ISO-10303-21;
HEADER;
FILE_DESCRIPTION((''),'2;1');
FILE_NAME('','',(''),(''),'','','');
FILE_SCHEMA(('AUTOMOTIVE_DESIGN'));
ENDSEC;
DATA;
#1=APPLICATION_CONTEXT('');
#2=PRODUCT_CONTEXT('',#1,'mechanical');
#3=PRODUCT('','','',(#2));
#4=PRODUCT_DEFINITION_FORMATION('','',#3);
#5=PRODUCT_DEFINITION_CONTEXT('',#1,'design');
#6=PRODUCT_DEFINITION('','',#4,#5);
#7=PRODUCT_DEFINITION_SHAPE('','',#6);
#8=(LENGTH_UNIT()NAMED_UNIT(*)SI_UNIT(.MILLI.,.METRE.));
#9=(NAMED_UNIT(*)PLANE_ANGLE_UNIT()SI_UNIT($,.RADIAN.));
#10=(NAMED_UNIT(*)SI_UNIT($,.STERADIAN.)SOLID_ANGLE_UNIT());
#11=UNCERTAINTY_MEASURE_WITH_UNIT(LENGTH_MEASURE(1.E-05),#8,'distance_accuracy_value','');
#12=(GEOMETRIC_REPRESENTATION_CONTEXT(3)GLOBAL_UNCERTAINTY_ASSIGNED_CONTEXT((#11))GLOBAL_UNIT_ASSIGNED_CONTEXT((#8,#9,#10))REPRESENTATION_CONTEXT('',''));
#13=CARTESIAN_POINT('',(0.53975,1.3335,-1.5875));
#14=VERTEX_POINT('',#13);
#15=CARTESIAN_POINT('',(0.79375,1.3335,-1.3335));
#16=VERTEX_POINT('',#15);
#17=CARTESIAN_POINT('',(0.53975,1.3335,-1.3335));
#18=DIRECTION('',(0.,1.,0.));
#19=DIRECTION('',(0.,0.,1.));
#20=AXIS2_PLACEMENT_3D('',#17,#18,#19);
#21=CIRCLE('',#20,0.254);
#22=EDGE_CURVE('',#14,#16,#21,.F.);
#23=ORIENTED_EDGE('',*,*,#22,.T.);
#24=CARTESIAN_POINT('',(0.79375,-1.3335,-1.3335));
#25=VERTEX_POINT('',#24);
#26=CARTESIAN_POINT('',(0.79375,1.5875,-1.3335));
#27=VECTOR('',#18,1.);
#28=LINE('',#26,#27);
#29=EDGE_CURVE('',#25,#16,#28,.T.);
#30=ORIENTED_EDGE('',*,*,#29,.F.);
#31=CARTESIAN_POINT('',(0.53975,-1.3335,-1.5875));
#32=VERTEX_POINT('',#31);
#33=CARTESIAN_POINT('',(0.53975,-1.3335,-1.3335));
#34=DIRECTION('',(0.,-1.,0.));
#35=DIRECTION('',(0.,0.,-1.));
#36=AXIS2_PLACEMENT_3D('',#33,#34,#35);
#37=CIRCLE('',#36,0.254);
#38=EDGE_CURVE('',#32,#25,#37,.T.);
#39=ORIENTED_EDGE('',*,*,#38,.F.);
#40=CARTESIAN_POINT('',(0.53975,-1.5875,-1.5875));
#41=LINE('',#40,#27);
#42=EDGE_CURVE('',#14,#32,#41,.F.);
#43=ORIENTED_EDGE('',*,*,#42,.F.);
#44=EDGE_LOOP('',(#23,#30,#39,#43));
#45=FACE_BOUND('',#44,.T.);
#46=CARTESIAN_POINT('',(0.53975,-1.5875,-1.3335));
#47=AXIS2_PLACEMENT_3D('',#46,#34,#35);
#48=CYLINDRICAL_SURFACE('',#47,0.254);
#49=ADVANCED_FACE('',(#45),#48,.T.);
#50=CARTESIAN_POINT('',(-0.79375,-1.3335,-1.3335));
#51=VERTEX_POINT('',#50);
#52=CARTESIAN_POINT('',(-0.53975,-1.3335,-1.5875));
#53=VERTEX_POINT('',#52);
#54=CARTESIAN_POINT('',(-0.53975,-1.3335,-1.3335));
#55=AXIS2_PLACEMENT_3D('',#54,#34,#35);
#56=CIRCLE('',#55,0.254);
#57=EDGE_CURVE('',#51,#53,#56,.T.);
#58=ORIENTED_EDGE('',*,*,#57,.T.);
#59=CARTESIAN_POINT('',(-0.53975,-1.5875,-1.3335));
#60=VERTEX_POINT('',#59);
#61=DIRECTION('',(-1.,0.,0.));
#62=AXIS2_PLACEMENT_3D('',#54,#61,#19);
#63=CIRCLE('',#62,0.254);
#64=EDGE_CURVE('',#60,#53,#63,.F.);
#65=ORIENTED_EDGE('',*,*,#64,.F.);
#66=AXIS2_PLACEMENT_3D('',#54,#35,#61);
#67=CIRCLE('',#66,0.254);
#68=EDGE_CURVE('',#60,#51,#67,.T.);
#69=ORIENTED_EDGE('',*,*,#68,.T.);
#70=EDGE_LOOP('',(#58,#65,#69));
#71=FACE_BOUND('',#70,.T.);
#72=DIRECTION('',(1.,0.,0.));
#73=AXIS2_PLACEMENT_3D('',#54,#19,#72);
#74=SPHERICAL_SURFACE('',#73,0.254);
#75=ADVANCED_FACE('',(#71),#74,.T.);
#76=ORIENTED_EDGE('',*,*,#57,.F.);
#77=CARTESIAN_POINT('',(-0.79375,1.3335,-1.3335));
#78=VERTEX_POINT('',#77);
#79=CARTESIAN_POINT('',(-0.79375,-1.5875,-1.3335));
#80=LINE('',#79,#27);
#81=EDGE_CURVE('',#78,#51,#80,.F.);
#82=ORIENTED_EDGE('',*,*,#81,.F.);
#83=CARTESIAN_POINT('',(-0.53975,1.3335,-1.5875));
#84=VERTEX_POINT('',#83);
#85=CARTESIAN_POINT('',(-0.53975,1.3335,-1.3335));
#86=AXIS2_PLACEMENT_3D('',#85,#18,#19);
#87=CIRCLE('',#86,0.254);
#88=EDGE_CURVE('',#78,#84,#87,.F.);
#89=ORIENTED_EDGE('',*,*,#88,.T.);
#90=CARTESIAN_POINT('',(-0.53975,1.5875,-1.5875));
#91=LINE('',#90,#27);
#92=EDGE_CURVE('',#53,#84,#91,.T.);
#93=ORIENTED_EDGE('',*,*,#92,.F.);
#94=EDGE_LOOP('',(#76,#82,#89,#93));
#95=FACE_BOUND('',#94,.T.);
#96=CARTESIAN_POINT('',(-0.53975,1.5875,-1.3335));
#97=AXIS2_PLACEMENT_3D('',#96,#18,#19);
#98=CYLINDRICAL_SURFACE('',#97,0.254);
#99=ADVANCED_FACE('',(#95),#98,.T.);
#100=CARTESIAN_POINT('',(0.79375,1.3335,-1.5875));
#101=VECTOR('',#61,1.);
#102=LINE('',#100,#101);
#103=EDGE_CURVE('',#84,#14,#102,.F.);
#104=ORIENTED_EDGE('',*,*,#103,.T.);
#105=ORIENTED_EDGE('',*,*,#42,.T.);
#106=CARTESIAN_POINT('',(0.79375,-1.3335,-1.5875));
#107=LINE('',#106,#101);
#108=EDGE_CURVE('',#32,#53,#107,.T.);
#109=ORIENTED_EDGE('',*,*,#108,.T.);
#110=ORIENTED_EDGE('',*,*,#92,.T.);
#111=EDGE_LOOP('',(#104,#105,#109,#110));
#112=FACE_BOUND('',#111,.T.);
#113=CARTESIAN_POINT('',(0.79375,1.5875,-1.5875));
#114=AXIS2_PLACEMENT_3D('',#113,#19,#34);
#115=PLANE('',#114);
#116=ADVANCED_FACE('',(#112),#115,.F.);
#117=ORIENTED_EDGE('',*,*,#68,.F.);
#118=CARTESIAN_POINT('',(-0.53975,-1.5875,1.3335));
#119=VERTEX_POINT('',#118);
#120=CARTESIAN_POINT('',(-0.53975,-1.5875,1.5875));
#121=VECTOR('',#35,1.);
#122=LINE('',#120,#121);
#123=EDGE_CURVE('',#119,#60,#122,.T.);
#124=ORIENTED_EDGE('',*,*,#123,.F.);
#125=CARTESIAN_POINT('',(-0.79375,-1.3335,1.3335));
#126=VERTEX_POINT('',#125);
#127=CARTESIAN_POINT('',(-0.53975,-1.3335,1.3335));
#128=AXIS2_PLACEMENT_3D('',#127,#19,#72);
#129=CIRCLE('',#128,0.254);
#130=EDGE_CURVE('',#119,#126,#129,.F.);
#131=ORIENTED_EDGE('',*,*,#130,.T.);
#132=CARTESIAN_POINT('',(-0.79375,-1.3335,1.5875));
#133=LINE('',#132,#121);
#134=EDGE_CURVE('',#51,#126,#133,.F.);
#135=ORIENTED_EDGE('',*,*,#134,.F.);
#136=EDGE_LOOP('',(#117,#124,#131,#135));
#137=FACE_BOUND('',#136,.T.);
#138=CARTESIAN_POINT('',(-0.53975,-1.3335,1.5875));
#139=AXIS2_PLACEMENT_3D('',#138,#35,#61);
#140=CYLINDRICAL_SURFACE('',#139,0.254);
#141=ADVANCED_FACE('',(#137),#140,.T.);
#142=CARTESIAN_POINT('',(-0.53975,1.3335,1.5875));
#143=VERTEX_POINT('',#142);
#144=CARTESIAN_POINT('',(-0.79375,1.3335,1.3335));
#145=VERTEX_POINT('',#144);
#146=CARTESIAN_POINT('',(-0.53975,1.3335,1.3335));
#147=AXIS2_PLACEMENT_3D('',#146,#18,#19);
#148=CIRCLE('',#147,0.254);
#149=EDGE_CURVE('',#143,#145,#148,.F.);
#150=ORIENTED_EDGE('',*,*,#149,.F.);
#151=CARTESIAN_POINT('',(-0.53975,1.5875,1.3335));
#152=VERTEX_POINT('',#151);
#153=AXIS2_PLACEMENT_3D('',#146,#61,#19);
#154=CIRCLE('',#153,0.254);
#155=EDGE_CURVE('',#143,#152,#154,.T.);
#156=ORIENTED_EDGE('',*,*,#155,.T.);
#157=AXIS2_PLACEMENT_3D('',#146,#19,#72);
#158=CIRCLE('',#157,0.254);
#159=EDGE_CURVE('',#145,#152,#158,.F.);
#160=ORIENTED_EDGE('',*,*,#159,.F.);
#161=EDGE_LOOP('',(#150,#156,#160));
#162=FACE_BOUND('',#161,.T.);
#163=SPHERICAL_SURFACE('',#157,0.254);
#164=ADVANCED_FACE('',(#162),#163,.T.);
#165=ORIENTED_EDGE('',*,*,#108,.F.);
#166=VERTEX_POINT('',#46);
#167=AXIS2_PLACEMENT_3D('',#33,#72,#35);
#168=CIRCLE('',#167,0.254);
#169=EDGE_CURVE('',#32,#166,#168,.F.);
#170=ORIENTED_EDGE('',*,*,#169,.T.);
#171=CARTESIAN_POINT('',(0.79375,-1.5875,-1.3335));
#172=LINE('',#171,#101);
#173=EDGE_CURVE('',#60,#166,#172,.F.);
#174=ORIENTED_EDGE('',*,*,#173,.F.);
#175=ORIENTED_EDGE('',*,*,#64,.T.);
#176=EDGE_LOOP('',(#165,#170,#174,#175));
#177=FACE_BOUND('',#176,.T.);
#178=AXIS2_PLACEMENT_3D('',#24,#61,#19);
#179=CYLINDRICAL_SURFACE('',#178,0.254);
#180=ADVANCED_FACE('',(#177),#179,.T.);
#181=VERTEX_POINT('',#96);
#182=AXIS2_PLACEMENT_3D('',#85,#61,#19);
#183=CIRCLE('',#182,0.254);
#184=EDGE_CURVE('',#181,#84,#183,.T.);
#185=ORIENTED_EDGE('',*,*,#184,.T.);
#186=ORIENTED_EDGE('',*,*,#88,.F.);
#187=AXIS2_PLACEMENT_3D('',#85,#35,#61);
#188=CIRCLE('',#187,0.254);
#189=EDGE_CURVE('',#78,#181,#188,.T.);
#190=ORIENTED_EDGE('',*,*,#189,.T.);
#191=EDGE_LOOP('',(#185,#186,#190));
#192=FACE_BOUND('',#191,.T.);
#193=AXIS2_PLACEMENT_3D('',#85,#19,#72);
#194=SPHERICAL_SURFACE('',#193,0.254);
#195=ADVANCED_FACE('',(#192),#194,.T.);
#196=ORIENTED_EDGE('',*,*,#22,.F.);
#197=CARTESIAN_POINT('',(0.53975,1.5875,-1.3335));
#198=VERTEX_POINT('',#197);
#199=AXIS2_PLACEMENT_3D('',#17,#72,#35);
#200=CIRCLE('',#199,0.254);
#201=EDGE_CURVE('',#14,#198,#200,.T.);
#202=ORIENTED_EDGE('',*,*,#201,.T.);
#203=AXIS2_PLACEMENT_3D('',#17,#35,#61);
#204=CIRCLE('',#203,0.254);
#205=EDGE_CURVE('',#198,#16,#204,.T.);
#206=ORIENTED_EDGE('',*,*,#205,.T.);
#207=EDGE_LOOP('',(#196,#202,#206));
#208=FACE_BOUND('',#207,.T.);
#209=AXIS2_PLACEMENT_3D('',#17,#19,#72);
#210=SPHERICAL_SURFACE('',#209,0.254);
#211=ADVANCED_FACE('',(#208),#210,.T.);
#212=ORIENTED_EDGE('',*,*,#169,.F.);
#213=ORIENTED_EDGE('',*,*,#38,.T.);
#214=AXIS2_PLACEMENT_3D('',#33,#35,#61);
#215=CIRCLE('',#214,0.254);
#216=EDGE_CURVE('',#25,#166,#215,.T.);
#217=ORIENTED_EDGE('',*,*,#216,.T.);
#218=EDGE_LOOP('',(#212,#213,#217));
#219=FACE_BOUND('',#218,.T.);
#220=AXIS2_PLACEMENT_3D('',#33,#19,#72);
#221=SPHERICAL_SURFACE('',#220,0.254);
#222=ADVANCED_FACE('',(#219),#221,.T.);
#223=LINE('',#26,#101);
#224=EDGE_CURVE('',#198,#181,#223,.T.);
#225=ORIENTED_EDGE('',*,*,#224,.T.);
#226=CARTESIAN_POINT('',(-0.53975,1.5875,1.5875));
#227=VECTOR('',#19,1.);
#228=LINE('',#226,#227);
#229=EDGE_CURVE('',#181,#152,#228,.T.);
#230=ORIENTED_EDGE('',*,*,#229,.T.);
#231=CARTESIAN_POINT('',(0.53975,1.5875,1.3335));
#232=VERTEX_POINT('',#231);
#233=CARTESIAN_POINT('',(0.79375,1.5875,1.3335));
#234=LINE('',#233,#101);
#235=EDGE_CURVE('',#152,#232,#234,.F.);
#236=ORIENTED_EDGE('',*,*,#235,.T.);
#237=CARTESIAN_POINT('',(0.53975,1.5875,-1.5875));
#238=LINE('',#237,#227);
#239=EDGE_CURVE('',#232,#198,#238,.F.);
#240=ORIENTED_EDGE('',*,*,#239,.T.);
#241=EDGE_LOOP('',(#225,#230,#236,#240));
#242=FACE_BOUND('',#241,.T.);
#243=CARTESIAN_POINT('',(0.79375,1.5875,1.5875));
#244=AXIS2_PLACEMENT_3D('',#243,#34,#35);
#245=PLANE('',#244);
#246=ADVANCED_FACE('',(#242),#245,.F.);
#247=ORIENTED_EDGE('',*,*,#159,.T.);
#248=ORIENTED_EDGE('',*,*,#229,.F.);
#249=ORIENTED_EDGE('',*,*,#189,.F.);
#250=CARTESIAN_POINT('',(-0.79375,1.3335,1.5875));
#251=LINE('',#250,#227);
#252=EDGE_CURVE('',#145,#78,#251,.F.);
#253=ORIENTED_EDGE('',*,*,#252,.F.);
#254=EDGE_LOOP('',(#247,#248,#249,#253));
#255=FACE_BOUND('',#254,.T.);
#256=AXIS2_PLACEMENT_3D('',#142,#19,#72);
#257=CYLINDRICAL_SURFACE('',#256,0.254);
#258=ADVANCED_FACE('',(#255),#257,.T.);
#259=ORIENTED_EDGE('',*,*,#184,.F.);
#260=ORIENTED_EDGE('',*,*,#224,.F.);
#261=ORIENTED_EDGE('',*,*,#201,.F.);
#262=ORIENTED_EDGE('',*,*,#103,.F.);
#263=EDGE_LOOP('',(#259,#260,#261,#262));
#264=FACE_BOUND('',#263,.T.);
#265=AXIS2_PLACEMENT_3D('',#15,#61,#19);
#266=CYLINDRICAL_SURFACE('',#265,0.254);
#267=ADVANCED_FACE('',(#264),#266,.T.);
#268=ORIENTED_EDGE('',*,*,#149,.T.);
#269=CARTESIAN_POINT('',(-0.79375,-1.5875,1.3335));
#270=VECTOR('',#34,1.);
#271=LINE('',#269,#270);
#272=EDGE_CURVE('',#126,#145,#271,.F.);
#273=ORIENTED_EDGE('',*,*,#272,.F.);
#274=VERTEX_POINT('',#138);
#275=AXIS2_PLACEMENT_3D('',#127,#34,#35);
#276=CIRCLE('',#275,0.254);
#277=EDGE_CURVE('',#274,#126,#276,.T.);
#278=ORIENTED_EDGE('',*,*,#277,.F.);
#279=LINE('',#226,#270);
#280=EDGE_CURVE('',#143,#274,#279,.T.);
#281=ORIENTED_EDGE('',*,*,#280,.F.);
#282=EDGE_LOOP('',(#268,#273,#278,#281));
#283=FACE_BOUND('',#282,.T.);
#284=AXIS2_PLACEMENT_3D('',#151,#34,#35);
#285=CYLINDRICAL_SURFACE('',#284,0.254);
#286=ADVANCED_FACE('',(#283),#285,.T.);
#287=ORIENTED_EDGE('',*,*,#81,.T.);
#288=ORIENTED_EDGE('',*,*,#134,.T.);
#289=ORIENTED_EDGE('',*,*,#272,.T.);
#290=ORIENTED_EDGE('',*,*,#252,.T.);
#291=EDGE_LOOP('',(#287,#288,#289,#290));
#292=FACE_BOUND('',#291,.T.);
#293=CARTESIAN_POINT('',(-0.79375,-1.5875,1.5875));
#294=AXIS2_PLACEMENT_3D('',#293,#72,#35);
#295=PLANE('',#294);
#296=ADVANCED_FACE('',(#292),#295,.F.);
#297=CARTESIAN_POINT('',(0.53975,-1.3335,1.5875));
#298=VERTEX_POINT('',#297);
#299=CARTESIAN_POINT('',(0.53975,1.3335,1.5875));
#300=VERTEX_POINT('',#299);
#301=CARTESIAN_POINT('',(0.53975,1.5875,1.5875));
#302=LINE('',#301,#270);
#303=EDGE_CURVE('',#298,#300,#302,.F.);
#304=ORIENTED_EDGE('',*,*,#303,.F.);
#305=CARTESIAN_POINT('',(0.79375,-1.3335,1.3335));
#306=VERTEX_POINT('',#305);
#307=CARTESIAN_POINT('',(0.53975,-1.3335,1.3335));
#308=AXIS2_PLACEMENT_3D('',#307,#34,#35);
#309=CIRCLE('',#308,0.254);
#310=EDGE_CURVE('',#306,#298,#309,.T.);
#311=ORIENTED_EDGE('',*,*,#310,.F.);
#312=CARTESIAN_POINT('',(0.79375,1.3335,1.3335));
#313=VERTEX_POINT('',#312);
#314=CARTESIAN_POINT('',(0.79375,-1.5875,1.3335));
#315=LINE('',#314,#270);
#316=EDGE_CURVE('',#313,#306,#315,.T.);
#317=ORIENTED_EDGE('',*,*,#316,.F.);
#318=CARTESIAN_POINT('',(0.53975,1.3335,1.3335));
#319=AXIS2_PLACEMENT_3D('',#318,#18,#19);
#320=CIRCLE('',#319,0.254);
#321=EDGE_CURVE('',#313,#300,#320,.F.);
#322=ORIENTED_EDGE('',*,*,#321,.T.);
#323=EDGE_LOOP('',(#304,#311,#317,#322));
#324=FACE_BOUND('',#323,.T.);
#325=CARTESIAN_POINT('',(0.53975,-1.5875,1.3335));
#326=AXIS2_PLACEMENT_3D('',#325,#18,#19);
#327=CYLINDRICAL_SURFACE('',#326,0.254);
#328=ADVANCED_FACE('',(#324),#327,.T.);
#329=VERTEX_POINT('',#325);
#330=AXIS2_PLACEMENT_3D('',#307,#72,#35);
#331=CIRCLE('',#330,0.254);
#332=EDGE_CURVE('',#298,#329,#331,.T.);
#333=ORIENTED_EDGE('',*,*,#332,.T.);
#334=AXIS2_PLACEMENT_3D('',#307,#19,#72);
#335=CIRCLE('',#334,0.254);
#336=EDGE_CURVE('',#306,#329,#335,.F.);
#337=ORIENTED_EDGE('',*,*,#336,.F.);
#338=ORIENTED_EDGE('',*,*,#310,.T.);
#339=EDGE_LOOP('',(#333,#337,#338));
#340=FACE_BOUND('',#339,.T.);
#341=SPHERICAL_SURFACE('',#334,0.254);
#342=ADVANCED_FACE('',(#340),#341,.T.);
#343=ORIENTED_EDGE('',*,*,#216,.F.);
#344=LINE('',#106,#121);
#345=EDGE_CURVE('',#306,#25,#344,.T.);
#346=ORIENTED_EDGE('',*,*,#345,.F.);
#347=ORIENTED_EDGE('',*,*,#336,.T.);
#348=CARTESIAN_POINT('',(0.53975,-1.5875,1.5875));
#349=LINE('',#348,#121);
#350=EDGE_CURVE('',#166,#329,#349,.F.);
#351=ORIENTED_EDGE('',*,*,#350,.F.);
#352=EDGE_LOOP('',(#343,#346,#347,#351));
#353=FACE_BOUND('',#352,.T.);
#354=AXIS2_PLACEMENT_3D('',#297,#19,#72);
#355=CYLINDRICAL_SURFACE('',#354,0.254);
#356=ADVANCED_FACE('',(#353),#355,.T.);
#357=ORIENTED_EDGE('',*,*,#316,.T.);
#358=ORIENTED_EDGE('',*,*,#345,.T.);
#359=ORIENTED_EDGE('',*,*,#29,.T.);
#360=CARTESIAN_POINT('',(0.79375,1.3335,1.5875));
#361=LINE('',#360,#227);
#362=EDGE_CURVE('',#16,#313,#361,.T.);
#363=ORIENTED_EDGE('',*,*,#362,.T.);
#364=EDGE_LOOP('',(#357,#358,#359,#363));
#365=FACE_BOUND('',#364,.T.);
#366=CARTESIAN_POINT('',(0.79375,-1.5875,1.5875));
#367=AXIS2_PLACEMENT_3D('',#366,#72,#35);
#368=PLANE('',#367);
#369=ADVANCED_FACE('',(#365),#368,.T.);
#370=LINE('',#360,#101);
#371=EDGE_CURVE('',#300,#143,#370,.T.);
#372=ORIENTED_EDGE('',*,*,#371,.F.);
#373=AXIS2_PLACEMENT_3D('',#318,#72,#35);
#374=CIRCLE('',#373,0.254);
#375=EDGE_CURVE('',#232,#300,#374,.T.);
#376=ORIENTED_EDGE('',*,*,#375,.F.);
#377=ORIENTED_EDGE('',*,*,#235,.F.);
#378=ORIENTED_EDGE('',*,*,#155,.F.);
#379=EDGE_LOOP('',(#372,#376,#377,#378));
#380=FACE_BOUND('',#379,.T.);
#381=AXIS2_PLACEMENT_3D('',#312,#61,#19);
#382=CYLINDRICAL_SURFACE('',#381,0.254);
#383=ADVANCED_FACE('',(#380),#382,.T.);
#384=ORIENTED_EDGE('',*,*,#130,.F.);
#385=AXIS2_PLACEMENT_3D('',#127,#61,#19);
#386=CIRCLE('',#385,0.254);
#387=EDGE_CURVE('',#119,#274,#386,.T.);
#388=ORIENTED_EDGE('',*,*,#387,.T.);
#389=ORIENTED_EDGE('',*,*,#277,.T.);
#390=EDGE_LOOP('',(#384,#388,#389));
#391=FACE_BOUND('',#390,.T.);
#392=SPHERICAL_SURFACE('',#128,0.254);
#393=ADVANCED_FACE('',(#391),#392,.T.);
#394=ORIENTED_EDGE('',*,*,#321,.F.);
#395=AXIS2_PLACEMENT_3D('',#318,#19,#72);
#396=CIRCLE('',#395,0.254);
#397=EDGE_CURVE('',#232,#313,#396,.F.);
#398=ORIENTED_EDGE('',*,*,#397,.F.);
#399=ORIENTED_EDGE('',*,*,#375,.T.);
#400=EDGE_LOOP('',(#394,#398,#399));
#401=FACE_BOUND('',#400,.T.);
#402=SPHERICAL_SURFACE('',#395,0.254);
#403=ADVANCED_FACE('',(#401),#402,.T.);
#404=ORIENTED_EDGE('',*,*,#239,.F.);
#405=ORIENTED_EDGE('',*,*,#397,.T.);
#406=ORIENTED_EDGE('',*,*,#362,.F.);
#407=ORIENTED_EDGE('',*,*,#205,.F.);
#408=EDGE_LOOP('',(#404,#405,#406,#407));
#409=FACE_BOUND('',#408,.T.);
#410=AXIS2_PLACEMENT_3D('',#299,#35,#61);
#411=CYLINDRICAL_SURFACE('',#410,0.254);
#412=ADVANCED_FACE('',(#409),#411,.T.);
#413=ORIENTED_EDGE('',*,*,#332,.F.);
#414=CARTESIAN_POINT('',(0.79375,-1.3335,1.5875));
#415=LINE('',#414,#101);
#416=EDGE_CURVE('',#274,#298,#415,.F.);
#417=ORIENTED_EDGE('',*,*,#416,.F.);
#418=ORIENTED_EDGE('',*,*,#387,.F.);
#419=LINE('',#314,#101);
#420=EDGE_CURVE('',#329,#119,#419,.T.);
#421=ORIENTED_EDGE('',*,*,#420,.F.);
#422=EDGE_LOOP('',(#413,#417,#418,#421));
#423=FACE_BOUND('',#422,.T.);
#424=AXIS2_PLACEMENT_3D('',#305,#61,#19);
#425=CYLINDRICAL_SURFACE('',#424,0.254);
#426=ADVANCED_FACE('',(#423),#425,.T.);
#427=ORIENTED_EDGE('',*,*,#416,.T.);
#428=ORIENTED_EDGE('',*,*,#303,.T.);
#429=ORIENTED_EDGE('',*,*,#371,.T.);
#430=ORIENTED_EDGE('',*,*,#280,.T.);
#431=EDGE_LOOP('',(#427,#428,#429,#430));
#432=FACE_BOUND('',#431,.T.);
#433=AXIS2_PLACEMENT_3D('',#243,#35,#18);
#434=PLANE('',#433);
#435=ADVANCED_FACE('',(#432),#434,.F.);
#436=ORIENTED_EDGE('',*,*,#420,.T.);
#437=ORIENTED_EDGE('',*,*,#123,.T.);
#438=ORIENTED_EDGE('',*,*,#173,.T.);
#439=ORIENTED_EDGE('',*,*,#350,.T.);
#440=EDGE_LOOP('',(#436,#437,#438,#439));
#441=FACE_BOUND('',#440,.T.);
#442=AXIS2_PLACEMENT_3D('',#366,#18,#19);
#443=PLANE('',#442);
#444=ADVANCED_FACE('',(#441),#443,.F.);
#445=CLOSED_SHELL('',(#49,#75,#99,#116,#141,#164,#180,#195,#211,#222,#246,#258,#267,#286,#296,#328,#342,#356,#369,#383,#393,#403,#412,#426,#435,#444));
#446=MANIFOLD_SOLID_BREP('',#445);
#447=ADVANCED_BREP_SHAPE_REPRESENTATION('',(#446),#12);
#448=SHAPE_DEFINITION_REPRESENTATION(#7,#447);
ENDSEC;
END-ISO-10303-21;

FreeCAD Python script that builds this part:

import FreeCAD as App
import Part
import Sketcher

V = App.Vector
Q = App.Units.Quantity


def add_polygon(sketch, points):
    """Adds a closed chain of lines whose ends are joined by coincident constraints."""
    first, n = sketch.GeometryCount, len(points)
    for a, b in zip(points, points[1:] + points[:1]):
        sketch.addGeometry(Part.LineSegment(App.Vector(*a, 0), App.Vector(*b, 0)), False)
    for i in range(n):
        sketch.addConstraint(Sketcher.Constraint("Coincident", first + i, 2, first + (i + 1) % n, 1))

doc = App.newDocument("Part")
body = doc.addObject("PartDesign::Body", "Body")

# Sketch on YZ plane
sketch1 = doc.addObject("Sketcher::SketchObject", "Sketch")
body.addObject(sketch1)
sketch1.AttachmentSupport = (doc.YZ_Plane, [""])
sketch1.MapMode = "FlatFace"
add_polygon(sketch1, [(1.6, 1.6), (-1.6, 1.6), (-1.6, -1.6), (1.6, -1.6)])  # lines 0-3
sketch1.addConstraint(Sketcher.Constraint("Horizontal", 0))
sketch1.addConstraint(Sketcher.Constraint("Vertical", 1))
sketch1.addConstraint(Sketcher.Constraint("Horizontal", 2))
sketch1.addConstraint(Sketcher.Constraint("Vertical", 3))
sketch1.addConstraint(Sketcher.Constraint("Symmetric", 0, 2, 2, 2, -1, 1))
sketch1.addConstraint(Sketcher.Constraint("Equal", 2, 1))
sketch1.addConstraint(Sketcher.Constraint("DistanceX", 0, 2, 0, 1, Q("0.125 in")))
pad1 = doc.addObject("PartDesign::Pad", "Pad")
body.addObject(pad1)
pad1.Profile = sketch1
pad1.Length = Q("0.0625 in")
pad1.Midplane = True
doc.recompute()

fillet = doc.addObject("PartDesign::Fillet", "Fillet")
body.addObject(fillet)
fillet.Base = (pad1, ["Edge1"])
fillet.UseAllEdges = True
fillet.Radius = Q("0.01 in")

doc.recompute()
